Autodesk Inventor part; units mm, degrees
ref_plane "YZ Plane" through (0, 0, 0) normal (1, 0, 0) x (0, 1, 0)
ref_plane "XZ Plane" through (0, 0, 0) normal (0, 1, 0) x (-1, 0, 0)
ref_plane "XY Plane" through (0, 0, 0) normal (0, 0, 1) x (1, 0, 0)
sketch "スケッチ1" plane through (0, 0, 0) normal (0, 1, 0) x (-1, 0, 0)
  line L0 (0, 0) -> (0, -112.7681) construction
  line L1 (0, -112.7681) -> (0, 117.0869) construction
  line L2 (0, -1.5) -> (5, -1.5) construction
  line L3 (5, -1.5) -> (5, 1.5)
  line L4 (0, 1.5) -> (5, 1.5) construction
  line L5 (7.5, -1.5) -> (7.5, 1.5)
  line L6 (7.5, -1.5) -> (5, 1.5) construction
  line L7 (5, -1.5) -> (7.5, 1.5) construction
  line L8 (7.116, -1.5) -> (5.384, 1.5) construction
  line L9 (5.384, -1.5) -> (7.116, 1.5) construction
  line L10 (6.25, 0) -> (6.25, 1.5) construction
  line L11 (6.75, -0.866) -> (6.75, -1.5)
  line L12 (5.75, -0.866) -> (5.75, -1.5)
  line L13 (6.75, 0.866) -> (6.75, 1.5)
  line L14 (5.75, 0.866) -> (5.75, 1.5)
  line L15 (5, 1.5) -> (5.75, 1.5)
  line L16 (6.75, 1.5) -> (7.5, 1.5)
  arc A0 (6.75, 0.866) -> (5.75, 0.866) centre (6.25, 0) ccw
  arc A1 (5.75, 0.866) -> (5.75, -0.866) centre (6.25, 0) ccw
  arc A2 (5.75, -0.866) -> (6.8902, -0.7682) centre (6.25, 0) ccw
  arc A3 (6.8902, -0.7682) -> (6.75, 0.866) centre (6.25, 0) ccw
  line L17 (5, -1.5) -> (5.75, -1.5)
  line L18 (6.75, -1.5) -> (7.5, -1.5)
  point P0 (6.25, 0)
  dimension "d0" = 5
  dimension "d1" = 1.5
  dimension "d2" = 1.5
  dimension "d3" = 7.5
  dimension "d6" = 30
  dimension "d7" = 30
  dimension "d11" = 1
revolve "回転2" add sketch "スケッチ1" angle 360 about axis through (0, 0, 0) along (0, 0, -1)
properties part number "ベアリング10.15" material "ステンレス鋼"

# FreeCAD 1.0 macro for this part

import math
import FreeCAD as App
import Part
import Sketcher

V = App.Vector

doc = App.newDocument("Part")
params = doc.addObject("Spreadsheet::Sheet", "Params")
for row, (alias, value) in enumerate([
    ("sketch1_radius", "1 mm"),
    ("revolution_angle", "360 deg"),
], start=1):
    params.set(f"A{row}", alias)
    params.set(f"B{row}", "=" + value)
    params.setAlias(f"B{row}", alias)

body = doc.addObject("PartDesign::Body", "Body")

# Sketch on XZ plane
sketch1 = body.newObject("Sketcher::SketchObject", "Sketch")
sketch1.AttachmentSupport = (doc.getObject("XZ_Plane"), [""])
sketch1.MapMode = "FlatFace"
sketch1.addGeometry([
    Part.LineSegment(V(-5, 1.5, 0), V(-5, -1.5, 0)),  # 0
    Part.LineSegment(V(-5, -1.5, 0), V(-5.8, -1.5, 0)),  # 1
    Part.LineSegment(V(-5.8, -1.5, 0), V(-5.8, -0.9, 0)),  # 2
    Part.ArcOfCircle(Part.Circle(V(-6.2, 0, 0), V(0, 0, 1), 1), math.radians(-120), math.radians(-60)),  # 3
    Part.LineSegment(V(-6.8, -0.9, 0), V(-6.8, -1.5, 0)),  # 4
    Part.LineSegment(V(-6.8, -1.5, 0), V(-7.5, -1.5, 0)),  # 5
    Part.LineSegment(V(-7.5, -1.5, 0), V(-7.5, 1.5, 0)),  # 6
    Part.LineSegment(V(-7.5, 1.5, 0), V(-6.8, 1.5, 0)),  # 7
    Part.LineSegment(V(-6.8, 1.5, 0), V(-6.8, 0.9, 0)),  # 8
    Part.ArcOfCircle(Part.Circle(V(-6.2, 0, 0), V(0, 0, 1), 1), math.radians(60), math.radians(120)),  # 9
    Part.LineSegment(V(-5.8, 0.9, 0), V(-5.8, 1.5, 0)),  # 10
    Part.LineSegment(V(-5.8, 1.5, 0), V(-5, 1.5, 0)),  # 11
], False)
sketch1.addConstraint([
    Sketcher.Constraint("Coincident", 0, 2, 1, 1),
    Sketcher.Constraint("Coincident", 1, 2, 2, 1),
    Sketcher.Constraint("Coincident", 2, 2, 3, 2),
    Sketcher.Constraint("Coincident", 3, 1, 4, 1),
    Sketcher.Constraint("Coincident", 4, 2, 5, 1),
    Sketcher.Constraint("Coincident", 5, 2, 6, 1),
    Sketcher.Constraint("Coincident", 6, 2, 7, 1),
    Sketcher.Constraint("Coincident", 7, 2, 8, 1),
    Sketcher.Constraint("Coincident", 8, 2, 9, 2),
    Sketcher.Constraint("Coincident", 9, 1, 10, 1),
    Sketcher.Constraint("Coincident", 10, 2, 11, 1),
    Sketcher.Constraint("Coincident", 11, 2, 0, 1),
    Sketcher.Constraint("Vertical", 0),
    Sketcher.Constraint("Horizontal", 1),
    Sketcher.Constraint("Vertical", 2),
    Sketcher.Constraint("Vertical", 4),
    Sketcher.Constraint("Horizontal", 5),
    Sketcher.Constraint("Vertical", 6),
    Sketcher.Constraint("Horizontal", 7),
    Sketcher.Constraint("Vertical", 8),
    Sketcher.Constraint("Vertical", 10),
    Sketcher.Constraint("Horizontal", 11),
    Sketcher.Constraint("Coincident", 9, 3, 3, 3),
    Sketcher.Constraint("Equal", 3, 9),
    Sketcher.Constraint("Symmetric", 4, 2, 7, 2, -1),
    Sketcher.Constraint("Symmetric", 2, 2, 9, 1, -1),
    Sketcher.Constraint("Horizontal", 2, 2, 3, 1),
    Sketcher.Constraint("Horizontal", 1, 2, 4, 2),
    Sketcher.Constraint("Horizontal", 7, 2, 10, 2),
    Sketcher.Constraint("Equal", 1, 5),
    Sketcher.Constraint("Radius", 3, 1.0),
    Sketcher.Constraint("DistanceX", 0, 2, -1, 1, 5.0),
    Sketcher.Constraint("DistanceX", 3, 1, 2, 2, 1.0),
    Sketcher.Constraint("DistanceY", 0, 2, -1, 1, 1.5),
    Sketcher.Constraint("DistanceX", 5, 2, -1, 1, 7.5),
])
sketch1.setExpression("Constraints[30]", "Params.sketch1_radius")
revolution = body.newObject("PartDesign::Revolution", "Revolution")
revolution.Profile = sketch1
revolution.ReferenceAxis = (sketch1, ["V_Axis"])
revolution.setExpression("Angle", "Params.revolution_angle")

doc.recompute()
